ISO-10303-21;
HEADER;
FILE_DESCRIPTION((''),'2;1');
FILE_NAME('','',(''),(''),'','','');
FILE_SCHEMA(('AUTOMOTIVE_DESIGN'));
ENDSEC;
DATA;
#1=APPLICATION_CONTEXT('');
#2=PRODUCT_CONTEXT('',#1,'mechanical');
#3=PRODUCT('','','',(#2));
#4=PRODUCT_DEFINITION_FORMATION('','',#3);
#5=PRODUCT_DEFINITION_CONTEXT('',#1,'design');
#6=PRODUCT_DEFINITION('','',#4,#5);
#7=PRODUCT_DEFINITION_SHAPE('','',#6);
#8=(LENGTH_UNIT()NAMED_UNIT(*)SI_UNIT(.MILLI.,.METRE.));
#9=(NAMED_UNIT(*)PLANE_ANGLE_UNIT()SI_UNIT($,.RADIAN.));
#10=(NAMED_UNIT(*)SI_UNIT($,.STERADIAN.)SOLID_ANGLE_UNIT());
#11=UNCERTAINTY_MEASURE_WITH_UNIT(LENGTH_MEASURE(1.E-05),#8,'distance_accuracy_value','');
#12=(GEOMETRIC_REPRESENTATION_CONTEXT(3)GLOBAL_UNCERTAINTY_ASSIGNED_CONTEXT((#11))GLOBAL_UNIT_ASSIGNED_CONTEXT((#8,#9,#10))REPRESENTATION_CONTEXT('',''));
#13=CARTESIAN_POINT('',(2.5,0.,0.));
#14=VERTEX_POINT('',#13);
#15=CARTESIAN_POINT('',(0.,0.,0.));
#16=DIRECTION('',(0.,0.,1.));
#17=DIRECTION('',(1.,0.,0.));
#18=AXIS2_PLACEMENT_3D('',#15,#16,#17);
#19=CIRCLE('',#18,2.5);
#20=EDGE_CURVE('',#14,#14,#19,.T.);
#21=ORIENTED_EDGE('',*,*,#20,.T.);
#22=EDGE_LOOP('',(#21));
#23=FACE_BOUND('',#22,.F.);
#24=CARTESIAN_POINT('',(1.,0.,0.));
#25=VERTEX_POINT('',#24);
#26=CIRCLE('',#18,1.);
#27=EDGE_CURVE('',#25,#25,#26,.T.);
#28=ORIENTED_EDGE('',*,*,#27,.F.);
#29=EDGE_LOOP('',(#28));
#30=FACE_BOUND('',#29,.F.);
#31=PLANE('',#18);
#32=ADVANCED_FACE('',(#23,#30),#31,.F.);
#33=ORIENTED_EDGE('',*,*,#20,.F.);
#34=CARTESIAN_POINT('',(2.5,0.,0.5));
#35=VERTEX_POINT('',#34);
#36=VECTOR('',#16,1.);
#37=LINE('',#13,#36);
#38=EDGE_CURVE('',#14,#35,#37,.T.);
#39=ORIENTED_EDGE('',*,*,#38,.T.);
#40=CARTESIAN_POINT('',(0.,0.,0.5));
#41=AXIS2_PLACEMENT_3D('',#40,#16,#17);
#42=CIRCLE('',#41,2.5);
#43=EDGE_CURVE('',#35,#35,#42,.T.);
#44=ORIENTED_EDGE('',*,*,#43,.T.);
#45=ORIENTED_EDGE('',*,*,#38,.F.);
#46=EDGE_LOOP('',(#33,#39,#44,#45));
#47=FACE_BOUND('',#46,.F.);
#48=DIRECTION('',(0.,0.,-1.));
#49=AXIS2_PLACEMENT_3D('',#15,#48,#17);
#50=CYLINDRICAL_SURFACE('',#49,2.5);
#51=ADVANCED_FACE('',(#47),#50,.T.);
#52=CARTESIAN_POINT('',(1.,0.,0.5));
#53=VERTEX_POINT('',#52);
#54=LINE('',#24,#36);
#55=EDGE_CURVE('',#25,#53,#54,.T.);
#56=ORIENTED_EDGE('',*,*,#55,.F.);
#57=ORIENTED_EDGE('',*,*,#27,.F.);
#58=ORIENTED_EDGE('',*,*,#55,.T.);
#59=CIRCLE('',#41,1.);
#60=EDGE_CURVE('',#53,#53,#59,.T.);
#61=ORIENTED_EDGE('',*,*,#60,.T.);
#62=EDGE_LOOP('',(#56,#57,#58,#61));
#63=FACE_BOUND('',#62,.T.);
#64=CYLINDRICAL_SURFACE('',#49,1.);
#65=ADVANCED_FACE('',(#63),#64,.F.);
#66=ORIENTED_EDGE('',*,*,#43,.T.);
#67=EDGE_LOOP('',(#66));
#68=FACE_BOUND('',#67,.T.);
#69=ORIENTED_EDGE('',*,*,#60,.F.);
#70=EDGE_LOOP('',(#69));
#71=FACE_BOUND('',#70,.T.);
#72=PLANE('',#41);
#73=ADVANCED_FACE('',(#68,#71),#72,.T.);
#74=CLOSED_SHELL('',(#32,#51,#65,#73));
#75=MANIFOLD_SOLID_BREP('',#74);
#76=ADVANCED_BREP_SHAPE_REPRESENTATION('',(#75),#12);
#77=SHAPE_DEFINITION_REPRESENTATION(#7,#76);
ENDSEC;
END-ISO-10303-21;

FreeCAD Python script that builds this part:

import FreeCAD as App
import Part
import Sketcher

V = App.Vector
Q = App.Units.Quantity

doc = App.newDocument("Part")
body = doc.addObject("PartDesign::Body", "Body")

# Sketch on XY plane
sketch1 = body.newObject("Sketcher::SketchObject", "Sketch")
sketch1.AttachmentSupport = (doc.getObject("XY_Plane"), [""])
sketch1.MapMode = "FlatFace"
sketch1.addGeometry([
    Part.Circle(V(0, 0, 0), V(0, 0, 1), 2.5),
    Part.Circle(V(0, 0, 0), V(0, 0, 1), 1),
], False)
sketch1.addConstraint([
    Sketcher.Constraint("Coincident", 0, 3, -1, 1),
    Sketcher.Constraint("Coincident", 1, 3, -1, 1),
    Sketcher.Constraint("Diameter", 0, Q("5 mm")),
    Sketcher.Constraint("Diameter", 1, Q("2 mm")),
])
pad1 = body.newObject("PartDesign::Pad", "Pad")
pad1.Profile = sketch1
pad1.Length = 0.5

doc.recompute()
